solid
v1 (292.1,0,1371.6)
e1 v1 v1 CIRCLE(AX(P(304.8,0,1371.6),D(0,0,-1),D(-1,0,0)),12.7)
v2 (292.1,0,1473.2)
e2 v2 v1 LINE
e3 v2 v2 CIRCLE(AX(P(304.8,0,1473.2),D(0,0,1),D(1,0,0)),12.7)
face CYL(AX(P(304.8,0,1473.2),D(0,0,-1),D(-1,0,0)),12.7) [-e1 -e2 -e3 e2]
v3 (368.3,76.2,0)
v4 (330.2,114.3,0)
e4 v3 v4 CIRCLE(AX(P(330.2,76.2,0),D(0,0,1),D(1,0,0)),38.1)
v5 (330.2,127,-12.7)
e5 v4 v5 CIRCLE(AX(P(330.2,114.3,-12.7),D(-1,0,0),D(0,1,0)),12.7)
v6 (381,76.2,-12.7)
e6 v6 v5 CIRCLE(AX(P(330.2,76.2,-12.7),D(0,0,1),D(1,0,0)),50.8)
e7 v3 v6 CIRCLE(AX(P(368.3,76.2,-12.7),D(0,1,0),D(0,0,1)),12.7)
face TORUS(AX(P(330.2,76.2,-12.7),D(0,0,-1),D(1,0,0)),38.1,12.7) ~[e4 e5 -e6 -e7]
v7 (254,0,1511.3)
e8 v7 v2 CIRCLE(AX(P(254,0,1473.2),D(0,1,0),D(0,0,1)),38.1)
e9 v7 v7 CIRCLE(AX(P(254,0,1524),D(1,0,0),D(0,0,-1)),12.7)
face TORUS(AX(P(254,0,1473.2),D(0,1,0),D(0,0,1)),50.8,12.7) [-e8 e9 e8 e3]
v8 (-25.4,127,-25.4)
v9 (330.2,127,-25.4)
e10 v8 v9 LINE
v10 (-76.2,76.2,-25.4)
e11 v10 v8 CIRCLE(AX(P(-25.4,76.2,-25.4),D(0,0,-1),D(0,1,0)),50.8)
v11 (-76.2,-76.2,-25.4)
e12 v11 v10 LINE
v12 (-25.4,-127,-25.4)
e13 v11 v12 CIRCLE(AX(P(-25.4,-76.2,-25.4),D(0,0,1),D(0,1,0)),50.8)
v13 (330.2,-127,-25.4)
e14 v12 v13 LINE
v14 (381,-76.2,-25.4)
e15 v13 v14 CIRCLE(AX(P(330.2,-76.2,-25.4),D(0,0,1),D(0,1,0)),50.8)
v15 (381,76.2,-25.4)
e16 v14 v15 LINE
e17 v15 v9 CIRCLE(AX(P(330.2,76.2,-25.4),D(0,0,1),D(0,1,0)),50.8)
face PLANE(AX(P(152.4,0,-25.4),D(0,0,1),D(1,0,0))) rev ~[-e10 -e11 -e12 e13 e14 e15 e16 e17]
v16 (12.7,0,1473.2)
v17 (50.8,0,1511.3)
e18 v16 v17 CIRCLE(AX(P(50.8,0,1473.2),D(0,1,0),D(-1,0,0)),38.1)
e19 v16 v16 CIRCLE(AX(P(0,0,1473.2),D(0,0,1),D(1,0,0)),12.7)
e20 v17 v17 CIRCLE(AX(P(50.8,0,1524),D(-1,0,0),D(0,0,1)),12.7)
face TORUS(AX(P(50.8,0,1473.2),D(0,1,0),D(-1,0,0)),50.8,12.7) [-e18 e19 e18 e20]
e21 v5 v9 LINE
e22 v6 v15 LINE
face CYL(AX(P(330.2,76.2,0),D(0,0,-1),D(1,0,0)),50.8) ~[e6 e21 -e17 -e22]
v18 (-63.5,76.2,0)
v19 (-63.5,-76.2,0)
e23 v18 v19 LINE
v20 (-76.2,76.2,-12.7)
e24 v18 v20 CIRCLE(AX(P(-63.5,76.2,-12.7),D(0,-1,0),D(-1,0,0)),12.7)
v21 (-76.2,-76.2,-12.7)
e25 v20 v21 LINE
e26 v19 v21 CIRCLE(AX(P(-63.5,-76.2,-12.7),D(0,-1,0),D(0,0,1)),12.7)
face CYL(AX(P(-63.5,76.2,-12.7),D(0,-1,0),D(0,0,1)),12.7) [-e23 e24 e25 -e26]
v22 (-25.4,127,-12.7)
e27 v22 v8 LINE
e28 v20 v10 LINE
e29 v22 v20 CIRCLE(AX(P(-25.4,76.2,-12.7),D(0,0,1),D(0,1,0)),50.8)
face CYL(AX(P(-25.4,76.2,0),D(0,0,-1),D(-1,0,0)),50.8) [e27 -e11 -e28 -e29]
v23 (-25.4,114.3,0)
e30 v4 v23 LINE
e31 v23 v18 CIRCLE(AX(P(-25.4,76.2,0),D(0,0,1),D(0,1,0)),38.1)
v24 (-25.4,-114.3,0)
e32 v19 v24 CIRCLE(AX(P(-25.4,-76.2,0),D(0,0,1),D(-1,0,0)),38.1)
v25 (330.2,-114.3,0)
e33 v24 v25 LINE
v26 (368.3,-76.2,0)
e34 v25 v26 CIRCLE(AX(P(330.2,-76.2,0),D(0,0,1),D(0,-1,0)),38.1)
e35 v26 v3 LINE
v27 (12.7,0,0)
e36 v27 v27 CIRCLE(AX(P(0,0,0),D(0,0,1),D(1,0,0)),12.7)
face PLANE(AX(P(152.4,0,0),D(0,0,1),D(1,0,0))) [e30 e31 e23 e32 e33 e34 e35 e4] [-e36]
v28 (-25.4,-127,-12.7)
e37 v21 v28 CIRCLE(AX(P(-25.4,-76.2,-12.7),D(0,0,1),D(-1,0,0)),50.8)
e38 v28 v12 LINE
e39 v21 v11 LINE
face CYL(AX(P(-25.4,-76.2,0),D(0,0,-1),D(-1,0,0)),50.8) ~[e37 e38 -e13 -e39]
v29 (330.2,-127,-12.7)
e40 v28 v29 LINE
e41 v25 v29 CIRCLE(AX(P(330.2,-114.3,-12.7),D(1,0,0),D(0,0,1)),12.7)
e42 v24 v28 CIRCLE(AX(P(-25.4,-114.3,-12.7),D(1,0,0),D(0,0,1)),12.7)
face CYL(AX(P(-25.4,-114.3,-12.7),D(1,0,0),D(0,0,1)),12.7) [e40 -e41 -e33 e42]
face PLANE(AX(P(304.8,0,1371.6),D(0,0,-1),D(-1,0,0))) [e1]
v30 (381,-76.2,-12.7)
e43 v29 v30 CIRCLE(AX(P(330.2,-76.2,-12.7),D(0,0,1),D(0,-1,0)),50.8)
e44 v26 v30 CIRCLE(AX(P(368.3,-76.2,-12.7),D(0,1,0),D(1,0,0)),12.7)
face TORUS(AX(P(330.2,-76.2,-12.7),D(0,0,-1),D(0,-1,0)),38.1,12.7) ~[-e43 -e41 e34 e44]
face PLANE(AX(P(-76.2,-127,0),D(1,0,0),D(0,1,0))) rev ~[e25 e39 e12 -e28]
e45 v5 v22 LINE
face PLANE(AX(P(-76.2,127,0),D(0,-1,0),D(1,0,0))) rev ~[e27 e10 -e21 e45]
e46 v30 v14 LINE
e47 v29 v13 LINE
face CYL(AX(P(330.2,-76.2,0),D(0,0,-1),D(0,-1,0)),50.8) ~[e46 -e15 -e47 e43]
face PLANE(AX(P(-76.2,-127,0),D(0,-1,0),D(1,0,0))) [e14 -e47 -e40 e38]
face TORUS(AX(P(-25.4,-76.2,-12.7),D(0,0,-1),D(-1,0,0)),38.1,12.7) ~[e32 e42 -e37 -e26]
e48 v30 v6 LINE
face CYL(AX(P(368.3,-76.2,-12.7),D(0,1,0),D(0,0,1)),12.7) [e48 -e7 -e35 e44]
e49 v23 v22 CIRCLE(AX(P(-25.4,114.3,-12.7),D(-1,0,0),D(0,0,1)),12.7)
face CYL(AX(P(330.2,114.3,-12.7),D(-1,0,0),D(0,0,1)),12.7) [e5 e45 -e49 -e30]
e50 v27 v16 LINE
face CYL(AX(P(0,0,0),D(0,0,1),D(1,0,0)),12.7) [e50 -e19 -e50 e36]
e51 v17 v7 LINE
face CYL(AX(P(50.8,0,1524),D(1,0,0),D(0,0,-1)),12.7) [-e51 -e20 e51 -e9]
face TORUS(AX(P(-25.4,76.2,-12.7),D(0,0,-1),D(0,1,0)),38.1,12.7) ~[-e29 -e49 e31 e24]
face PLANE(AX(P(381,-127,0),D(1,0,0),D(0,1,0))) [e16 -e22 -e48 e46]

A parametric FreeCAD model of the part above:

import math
import FreeCAD as App
import Part
import Sketcher
Q = App.Units.Quantity


def edges_at(feature, points):
    """Names of the edges that pass closest to the given points."""
    edges = feature.Shape.Edges
    near = lambda p: min(range(len(edges)), key=lambda i: edges[i].distToShape(Part.Vertex(*p))[0])
    return sorted({f"Edge{near(p) + 1}" for p in points})


def add_polygon(sketch, points):
    """Adds a closed chain of lines whose ends are joined by coincident constraints."""
    first, n = sketch.GeometryCount, len(points)
    for a, b in zip(points, points[1:] + points[:1]):
        sketch.addGeometry(Part.LineSegment(App.Vector(*a, 0), App.Vector(*b, 0)), False)
    for i in range(n):
        sketch.addConstraint(Sketcher.Constraint("Coincident", first + i, 2, first + (i + 1) % n, 1))

doc = App.newDocument("Part")
body = doc.addObject("PartDesign::Body", "Body")

# Sketch on XY plane
sketch1 = body.newObject("Sketcher::SketchObject", "Sketch")
sketch1.AttachmentSupport = (doc.getObject("XY_Plane"), [""])
sketch1.MapMode = "FlatFace"
add_polygon(sketch1, [(-76.2, 127), (-76.2, -127), (381, -127), (381, 127)])  # lines 0-3
sketch1.addConstraint([
    Sketcher.Constraint("Vertical", 0),
    Sketcher.Constraint("Horizontal", 1),
    Sketcher.Constraint("Vertical", 2),
    Sketcher.Constraint("Horizontal", 3),
    Sketcher.Constraint("DistanceX", 1, 1, 1, 2, Q("18 in")),
    Sketcher.Constraint("DistanceY", 0, 2, 0, 1, Q("10 in")),
    Sketcher.Constraint("DistanceX", 0, 2, -1, 1, Q("3 in")),
    Sketcher.Constraint("DistanceY", 0, 2, -1, 1, Q("5 in")),
])
pad1 = body.newObject("PartDesign::Pad", "Pad")
pad1.Profile = sketch1
pad1.Length = Q("1 in")
pad1.Reversed = True
doc.recompute()

fillet = body.newObject("PartDesign::Fillet", "Fillet")
fillet.Base = (pad1, edges_at(pad1, [
    (-76.2, -127, -12.7),
    (381, -127, -12.7),
    (381, 127, -12.7),
    (-76.2, 127, -12.7),
]))
fillet.Radius = Q("2 in")
doc.recompute()

fillet2 = body.newObject("PartDesign::Fillet", "Fillet001")
fillet2.Base = (fillet, edges_at(fillet, [(152.4, -127, 0)]))
fillet2.Radius = Q("0.5 in")

# Sketch on XY plane
sketch2 = body.newObject("Sketcher::SketchObject", "Sketch001")
sketch2.AttachmentSupport = (doc.getObject("XY_Plane"), [""])
sketch2.MapMode = "FlatFace"
sketch2.addGeometry(Part.Circle(App.Vector(0, 0, 0), App.Vector(0, 0, 1), 12.7), False)
sketch2.addConstraint([
    Sketcher.Constraint("Coincident", 0, 3, -1, 1),
    Sketcher.Constraint("Diameter", 0, Q("1 in")),
])

# Sketch on XZ plane
sketch3 = body.newObject("Sketcher::SketchObject", "Sketch002")
sketch3.AttachmentSupport = (doc.getObject("XZ_Plane"), [""])
sketch3.MapMode = "FlatFace"
sketch3.addGeometry([
    Part.LineSegment(App.Vector(0, 0, 0), App.Vector(0, 1473.2, 0)),  # 0
    Part.ArcOfCircle(Part.Circle(App.Vector(50.8, 1473.2, 0), App.Vector(0, 0, 1), 50.8), math.radians(90), math.radians(180)),  # 1
    Part.LineSegment(App.Vector(50.8, 1524, 0), App.Vector(254, 1524, 0)),  # 2
    Part.ArcOfCircle(Part.Circle(App.Vector(254, 1473.2, 0), App.Vector(0, 0, 1), 50.8), math.radians(0), math.radians(90)),  # 3
    Part.LineSegment(App.Vector(304.8, 1473.2, 0), App.Vector(304.8, 1371.6, 0)),  # 4
], False)
sketch3.addConstraint([
    Sketcher.Constraint("Tangent", 0, 2, 1, 2),
    Sketcher.Constraint("Tangent", 1, 1, 2, 1),
    Sketcher.Constraint("Tangent", 2, 2, 3, 2),
    Sketcher.Constraint("Tangent", 3, 1, 4, 1),
    Sketcher.Constraint("Vertical", 0),
    Sketcher.Constraint("Horizontal", 2),
    Sketcher.Constraint("Vertical", 4),
    Sketcher.Constraint("Coincident", 0, 1, -1, 1),
    Sketcher.Constraint("Equal", 1, 3),
    Sketcher.Constraint("Radius", 1, Q("2 in")),
    Sketcher.Constraint("DistanceX", 2, 1, 2, 2, Q("8 in")),
    Sketcher.Constraint("DistanceY", 0, 1, 0, 2, Q("58 in")),
    Sketcher.Constraint("DistanceY", 4, 2, 4, 1, Q("4 in")),
])
doc.recompute()

additivepipe = body.newObject("PartDesign::AdditivePipe", "AdditivePipe")
additivepipe.Profile = sketch2
additivepipe.Spine = (sketch3, ["Edge1", "Edge2", "Edge3", "Edge4", "Edge5"])

doc.recompute()
